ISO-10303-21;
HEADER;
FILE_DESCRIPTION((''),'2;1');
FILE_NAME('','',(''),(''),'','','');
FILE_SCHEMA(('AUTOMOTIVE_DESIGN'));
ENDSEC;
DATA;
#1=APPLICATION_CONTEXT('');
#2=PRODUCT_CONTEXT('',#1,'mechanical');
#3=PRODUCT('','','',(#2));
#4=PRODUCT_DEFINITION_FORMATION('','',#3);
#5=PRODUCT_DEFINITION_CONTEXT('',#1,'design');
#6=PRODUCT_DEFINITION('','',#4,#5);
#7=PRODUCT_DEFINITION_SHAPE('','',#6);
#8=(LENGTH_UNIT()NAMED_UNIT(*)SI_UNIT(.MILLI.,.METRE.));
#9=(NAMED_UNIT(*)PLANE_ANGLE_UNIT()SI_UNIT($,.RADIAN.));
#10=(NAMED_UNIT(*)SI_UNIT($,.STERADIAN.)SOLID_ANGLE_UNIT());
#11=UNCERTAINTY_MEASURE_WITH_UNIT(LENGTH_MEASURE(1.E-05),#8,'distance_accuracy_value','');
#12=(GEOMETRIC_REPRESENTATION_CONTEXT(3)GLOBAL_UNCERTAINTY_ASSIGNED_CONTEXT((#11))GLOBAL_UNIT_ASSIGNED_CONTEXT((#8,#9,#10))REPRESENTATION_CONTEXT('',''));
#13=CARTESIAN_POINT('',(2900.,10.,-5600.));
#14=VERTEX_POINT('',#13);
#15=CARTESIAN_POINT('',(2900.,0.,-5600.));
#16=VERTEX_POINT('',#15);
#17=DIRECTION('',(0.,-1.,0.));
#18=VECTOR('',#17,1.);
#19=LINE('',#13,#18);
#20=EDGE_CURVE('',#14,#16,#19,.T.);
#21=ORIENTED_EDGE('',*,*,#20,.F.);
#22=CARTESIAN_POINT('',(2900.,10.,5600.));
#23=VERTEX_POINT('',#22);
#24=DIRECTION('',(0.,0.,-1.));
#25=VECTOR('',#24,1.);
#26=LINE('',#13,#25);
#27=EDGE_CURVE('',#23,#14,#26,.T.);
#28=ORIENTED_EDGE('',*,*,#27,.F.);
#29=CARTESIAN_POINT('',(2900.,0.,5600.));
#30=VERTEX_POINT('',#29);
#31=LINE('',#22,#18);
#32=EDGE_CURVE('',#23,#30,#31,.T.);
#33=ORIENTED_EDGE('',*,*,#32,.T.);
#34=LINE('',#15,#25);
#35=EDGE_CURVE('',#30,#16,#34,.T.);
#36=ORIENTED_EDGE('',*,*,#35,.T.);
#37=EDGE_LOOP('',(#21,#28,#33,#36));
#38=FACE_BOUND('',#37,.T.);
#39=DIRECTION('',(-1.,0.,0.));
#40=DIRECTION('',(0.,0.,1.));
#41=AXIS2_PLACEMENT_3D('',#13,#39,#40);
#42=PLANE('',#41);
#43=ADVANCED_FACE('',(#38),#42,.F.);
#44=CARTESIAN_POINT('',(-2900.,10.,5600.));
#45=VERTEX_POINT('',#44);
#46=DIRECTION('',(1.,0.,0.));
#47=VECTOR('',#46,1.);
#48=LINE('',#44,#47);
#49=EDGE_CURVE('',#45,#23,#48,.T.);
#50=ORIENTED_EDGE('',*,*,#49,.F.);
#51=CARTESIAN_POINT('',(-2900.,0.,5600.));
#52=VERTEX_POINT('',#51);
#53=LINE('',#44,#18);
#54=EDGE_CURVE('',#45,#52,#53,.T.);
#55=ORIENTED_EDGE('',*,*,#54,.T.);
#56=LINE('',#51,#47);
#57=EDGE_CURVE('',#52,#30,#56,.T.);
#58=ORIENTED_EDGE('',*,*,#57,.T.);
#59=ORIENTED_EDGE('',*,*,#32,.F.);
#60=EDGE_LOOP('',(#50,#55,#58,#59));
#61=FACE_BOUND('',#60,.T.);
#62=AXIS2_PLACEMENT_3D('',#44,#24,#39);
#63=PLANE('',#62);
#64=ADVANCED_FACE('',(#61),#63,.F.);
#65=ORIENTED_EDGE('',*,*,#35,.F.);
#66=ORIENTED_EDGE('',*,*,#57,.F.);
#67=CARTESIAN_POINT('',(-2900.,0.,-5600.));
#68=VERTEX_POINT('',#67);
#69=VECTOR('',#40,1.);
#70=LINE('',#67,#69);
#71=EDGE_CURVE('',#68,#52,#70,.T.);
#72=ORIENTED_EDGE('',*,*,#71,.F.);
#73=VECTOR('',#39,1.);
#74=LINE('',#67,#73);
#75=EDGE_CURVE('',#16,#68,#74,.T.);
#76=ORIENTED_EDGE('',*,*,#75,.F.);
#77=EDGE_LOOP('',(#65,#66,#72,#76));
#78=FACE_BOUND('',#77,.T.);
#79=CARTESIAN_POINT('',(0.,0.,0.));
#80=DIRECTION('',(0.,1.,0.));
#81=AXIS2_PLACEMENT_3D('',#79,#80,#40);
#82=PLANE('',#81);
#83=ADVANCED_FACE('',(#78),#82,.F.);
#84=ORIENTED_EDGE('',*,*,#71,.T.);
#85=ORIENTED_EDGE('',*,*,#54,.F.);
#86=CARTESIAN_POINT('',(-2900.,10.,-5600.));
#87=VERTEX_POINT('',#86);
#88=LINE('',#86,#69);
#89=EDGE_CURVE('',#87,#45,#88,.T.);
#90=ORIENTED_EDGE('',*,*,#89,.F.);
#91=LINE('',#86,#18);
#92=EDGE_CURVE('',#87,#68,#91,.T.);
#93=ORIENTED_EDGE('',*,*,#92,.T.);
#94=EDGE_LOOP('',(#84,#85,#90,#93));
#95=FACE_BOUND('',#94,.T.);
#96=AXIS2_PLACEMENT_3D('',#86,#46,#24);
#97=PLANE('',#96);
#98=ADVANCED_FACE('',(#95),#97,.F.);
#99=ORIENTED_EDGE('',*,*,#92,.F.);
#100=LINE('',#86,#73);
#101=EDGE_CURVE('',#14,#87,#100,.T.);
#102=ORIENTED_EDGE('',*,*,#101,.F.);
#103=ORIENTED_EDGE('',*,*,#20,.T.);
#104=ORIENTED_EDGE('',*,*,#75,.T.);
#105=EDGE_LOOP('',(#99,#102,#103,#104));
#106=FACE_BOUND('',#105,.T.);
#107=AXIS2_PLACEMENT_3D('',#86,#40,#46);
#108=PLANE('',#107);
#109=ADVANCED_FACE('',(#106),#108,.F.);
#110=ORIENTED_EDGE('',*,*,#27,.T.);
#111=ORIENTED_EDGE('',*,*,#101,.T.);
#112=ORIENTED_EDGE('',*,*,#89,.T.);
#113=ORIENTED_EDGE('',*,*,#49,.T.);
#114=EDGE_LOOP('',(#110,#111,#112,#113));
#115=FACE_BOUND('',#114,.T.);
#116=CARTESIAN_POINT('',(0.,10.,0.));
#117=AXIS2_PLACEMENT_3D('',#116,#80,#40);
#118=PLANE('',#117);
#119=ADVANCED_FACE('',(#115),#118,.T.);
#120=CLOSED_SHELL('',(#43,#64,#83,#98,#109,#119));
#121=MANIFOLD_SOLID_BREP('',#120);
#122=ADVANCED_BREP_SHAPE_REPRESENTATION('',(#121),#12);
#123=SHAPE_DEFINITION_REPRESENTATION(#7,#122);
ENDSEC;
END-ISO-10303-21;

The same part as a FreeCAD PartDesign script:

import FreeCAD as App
import Part
import Sketcher
Q = App.Units.Quantity

doc = App.newDocument("Part")
params = doc.addObject("Spreadsheet::Sheet", "Params")
for row, (alias, value) in enumerate([
    ("sketch1_width", "5800 mm"),
    ("sketch1_height", "11200 mm"),
    ("pad1_length", "10 mm"),
], start=1):
    params.set(f"A{row}", alias)
    params.set(f"B{row}", "=" + value)
    params.setAlias(f"B{row}", alias)

body = doc.addObject("PartDesign::Body", "Body")

sketch1 = body.newObject("Sketcher::SketchObject", "Sketch")
sketch1.AttachmentSupport = (doc.getObject("XZ_Plane"), [""])
sketch1.MapMode = "FlatFace"
sketch1.addGeometry(Part.LineSegment(App.Vector(-2900, -5600, 0), App.Vector(-2900, 5600, 0)), False)
sketch1.addGeometry(Part.LineSegment(App.Vector(-2900, 5600, 0), App.Vector(2900, 5600, 0)), False)
sketch1.addGeometry(Part.LineSegment(App.Vector(2900, 5600, 0), App.Vector(2900, -5600, 0)), False)
sketch1.addGeometry(Part.LineSegment(App.Vector(2900, -5600, 0), App.Vector(-2900, -5600, 0)), False)
sketch1.addConstraint(Sketcher.Constraint("Coincident", 0, 2, 1, 1))
sketch1.addConstraint(Sketcher.Constraint("Coincident", 1, 2, 2, 1))
sketch1.addConstraint(Sketcher.Constraint("Coincident", 2, 2, 3, 1))
sketch1.addConstraint(Sketcher.Constraint("Coincident", 3, 2, 0, 1))
sketch1.addConstraint(Sketcher.Constraint("Vertical", 0))
sketch1.addConstraint(Sketcher.Constraint("Horizontal", 1))
sketch1.addConstraint(Sketcher.Constraint("Vertical", 2))
sketch1.addConstraint(Sketcher.Constraint("Horizontal", 3))
sketch1.addConstraint(Sketcher.Constraint("Symmetric", 0, 2, 2, 2, -1, 1))
sketch1.addConstraint(Sketcher.Constraint("DistanceX", 1, 1, 1, 2, Q("5800 mm")))
sketch1.addConstraint(Sketcher.Constraint("DistanceY", 0, 1, 0, 2, Q("11200 mm")))
sketch1.setExpression("Constraints[9]", "Params.sketch1_width")
sketch1.setExpression("Constraints[10]", "Params.sketch1_height")
pad1 = body.newObject("PartDesign::Pad", "Pad")
pad1.Profile = sketch1
pad1.setExpression("Length", "Params.pad1_length")
pad1.Reversed = True

doc.recompute()
